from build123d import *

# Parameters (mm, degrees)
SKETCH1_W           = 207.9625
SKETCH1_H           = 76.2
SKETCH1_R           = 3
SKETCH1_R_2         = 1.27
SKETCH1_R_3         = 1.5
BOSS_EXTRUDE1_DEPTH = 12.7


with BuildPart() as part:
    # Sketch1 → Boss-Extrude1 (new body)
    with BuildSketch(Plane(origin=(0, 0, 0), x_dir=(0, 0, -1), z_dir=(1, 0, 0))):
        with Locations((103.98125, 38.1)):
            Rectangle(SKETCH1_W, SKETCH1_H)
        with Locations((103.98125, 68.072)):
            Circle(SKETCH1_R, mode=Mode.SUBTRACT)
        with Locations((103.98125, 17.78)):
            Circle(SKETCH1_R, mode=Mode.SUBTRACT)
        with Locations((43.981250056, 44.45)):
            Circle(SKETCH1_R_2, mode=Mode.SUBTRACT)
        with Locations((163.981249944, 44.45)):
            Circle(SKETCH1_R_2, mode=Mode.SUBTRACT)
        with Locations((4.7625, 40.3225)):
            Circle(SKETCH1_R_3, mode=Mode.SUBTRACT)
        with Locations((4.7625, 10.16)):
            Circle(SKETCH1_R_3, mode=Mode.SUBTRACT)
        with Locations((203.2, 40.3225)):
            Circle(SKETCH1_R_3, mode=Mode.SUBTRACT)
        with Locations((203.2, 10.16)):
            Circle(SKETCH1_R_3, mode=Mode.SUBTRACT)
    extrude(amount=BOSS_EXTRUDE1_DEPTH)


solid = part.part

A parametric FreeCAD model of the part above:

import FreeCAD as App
import Part
import Sketcher
from FreeCAD import Vector
Q = App.Units.Quantity


def add_polygon(sketch, points):
    """Adds a closed chain of lines whose ends are joined by coincident constraints."""
    first, n = sketch.GeometryCount, len(points)
    for a, b in zip(points, points[1:] + points[:1]):
        sketch.addGeometry(Part.LineSegment(App.Vector(*a, 0), App.Vector(*b, 0)), False)
    for i in range(n):
        sketch.addConstraint(Sketcher.Constraint("Coincident", first + i, 2, first + (i + 1) % n, 1))

doc = App.newDocument("Part")
body = doc.addObject("PartDesign::Body", "Body")

sketch1 = doc.addObject("Sketcher::SketchObject", "Sketch")
body.addObject(sketch1)
sketch1.AttachmentSupport = (doc.YZ_Plane, [""])
sketch1.MapMode = "FlatFace"
add_polygon(sketch1, [(76.2, 0), (0, 0), (0, -208), (76.2, -208)])
sketch1.addGeometry(Part.Circle(Vector(10.2, -4.8, 0), Vector(0, 0, 1), 1.5), False)
sketch1.addGeometry(Part.Circle(Vector(17.8, -104, 0), Vector(0, 0, 1), 3), False)
sketch1.addGeometry(Part.Circle(Vector(10.2, -203.2, 0), Vector(0, 0, 1), 1.5), False)
sketch1.addGeometry(Part.Circle(Vector(40.3, -4.8, 0), Vector(0, 0, 1), 1.5), False)
sketch1.addGeometry(Part.Circle(Vector(44.5, -44, 0), Vector(0, 0, 1), 1.3), False)
sketch1.addGeometry(Part.Circle(Vector(68.1, -104, 0), Vector(0, 0, 1), 3), False)
sketch1.addGeometry(Part.Circle(Vector(44.5, -164, 0), Vector(0, 0, 1), 1.3), False)
sketch1.addGeometry(Part.Circle(Vector(40.3, -203.2, 0), Vector(0, 0, 1), 1.5), False)
sketch1.addConstraint(Sketcher.Constraint("Horizontal", 0))
sketch1.addConstraint(Sketcher.Constraint("Vertical", 1))
sketch1.addConstraint(Sketcher.Constraint("Horizontal", 2))
sketch1.addConstraint(Sketcher.Constraint("Vertical", 3))
sketch1.addConstraint(Sketcher.Constraint("Coincident", 0, 2, -1, 1))
sketch1.addConstraint(Sketcher.Constraint("Equal", 4, 6))
sketch1.addConstraint(Sketcher.Constraint("Equal", 6, 7))
sketch1.addConstraint(Sketcher.Constraint("Equal", 5, 9))
sketch1.addConstraint(Sketcher.Constraint("Equal", 8, 10))
sketch1.addConstraint(Sketcher.Constraint("Equal", 7, 11))
sketch1.addConstraint(Sketcher.Constraint("Horizontal", 4, 3, 7, 3))
sketch1.addConstraint(Sketcher.Constraint("Horizontal", 5, 3, 9, 3))
sketch1.addConstraint(Sketcher.Constraint("Horizontal", 6, 3, 11, 3))
sketch1.addConstraint(Sketcher.Constraint("Vertical", 4, 3, 6, 3))
sketch1.addConstraint(Sketcher.Constraint("Vertical", 8, 3, 10, 3))
sketch1.addConstraint(Sketcher.Constraint("Vertical", 7, 3, 11, 3))
sketch1.addConstraint(Sketcher.Constraint("Diameter", 8, Q("0.1 in")))
sketch1.addConstraint(Sketcher.Constraint("DistanceX", 0, 2, 0, 1, Q("3 in")))
sketch1.addConstraint(Sketcher.Constraint("DistanceY", 6, 3, -1, 1, Q("8 in")))
sketch1.addConstraint(Sketcher.Constraint("DistanceX", -1, 1, 4, 3, Q("0.4 in")))
sketch1.addConstraint(Sketcher.Constraint("DistanceX", -1, 1, 5, 3, Q("0.7 in")))
sketch1.addConstraint(Sketcher.Constraint("Diameter", 4, Q("3 mm")))
sketch1.addConstraint(Sketcher.Constraint("Diameter", 5, Q("6 mm")))
sketch1.addConstraint(Sketcher.Constraint("DistanceY", 1, 2, 1, 1, Q("8.1875 in")))
sketch1.addConstraint(Sketcher.Constraint("DistanceX", -1, 1, 8, 3, Q("1.75 in")))
sketch1.addConstraint(Sketcher.Constraint("DistanceX", -1, 1, 9, 3, Q("2.68 in")))
sketch1.addConstraint(Sketcher.Constraint("DistanceY", 4, 3, -1, 1, Q("0.1875 in")))
sketch1.addConstraint(Sketcher.Constraint("DistanceY", 5, 3, -1, 1, Q("4.09375 in")))
sketch1.addConstraint(Sketcher.Constraint("DistanceX", 4, 3, 7, 3, Q("1.1875 in")))
sketch1.addConstraint(Sketcher.Constraint("DistanceY", 5, 3, 8, 3, Q("60 mm")))
sketch1.addConstraint(Sketcher.Constraint("DistanceY", 10, 3, 9, 3, Q("60 mm")))
pad1 = doc.addObject("PartDesign::Pad", "Pad")
body.addObject(pad1)
pad1.Profile = sketch1
pad1.Length = Q("0.5 in")

doc.recompute()
